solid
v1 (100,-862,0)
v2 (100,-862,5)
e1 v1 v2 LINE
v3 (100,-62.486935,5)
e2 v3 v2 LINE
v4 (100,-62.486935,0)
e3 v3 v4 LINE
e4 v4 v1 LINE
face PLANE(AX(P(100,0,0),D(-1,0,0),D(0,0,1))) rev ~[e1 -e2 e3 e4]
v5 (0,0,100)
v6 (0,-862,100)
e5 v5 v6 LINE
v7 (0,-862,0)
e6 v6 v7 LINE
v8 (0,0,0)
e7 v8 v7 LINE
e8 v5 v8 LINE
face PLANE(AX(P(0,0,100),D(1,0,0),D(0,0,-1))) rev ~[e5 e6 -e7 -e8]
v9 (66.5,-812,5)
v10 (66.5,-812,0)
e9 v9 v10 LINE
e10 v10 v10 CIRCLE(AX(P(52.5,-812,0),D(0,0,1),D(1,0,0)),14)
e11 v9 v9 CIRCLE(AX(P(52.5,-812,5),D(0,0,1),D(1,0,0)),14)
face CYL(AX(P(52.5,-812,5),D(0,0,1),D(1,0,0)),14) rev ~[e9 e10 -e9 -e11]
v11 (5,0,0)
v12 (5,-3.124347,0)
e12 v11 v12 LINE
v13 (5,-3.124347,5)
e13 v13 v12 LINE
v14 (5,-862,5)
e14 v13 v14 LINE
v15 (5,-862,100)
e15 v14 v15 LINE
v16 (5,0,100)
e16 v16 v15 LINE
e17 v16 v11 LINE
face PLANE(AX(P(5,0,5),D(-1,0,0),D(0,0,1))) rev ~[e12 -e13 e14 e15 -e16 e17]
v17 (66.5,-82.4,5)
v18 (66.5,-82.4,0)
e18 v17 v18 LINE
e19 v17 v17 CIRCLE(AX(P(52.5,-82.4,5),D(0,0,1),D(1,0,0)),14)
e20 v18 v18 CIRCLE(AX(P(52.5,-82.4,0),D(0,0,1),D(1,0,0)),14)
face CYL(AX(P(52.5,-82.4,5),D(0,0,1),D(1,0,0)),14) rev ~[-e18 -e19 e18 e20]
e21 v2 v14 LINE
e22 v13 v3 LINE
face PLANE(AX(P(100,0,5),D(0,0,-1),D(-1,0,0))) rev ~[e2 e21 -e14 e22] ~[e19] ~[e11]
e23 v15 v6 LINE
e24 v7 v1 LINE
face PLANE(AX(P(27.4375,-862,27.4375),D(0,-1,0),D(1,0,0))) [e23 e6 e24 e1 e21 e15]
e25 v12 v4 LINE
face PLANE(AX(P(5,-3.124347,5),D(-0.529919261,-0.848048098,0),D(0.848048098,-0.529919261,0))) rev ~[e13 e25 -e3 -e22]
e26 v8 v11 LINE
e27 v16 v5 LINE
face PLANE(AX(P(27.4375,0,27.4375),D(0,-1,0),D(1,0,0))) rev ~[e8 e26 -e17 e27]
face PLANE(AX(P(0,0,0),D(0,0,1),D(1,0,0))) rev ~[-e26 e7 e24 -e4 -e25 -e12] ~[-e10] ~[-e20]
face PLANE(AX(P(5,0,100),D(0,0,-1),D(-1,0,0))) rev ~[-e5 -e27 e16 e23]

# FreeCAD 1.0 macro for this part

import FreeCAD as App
import Part
import Sketcher
from FreeCAD import Vector
Q = App.Units.Quantity

doc = App.newDocument("Part")
body = doc.addObject("PartDesign::Body", "Body")

sketch1 = body.newObject("Sketcher::SketchObject", "Sketch")
sketch1.AttachmentSupport = (doc.getObject("XZ_Plane"), [""])
sketch1.MapMode = "FlatFace"
sketch1.addGeometry([
    Part.LineSegment(Vector(0, 100, 0), Vector(0, 0, 0)),
    Part.LineSegment(Vector(0, 0, 0), Vector(100, 0, 0)),
    Part.LineSegment(Vector(100, 0, 0), Vector(100, 5, 0)),
    Part.LineSegment(Vector(100, 5, 0), Vector(5, 5, 0)),
    Part.LineSegment(Vector(5, 5, 0), Vector(5, 100, 0)),
    Part.LineSegment(Vector(5, 100, 0), Vector(0, 100, 0)),
], False)
sketch1.addConstraint([
    Sketcher.Constraint("Coincident", 0, 2, 1, 1),
    Sketcher.Constraint("Coincident", 1, 2, 2, 1),
    Sketcher.Constraint("Coincident", 2, 2, 3, 1),
    Sketcher.Constraint("Coincident", 3, 2, 4, 1),
    Sketcher.Constraint("Coincident", 4, 2, 5, 1),
    Sketcher.Constraint("Coincident", 5, 2, 0, 1),
    Sketcher.Constraint("Vertical", 0),
    Sketcher.Constraint("Horizontal", 1),
    Sketcher.Constraint("Vertical", 2),
    Sketcher.Constraint("Horizontal", 3),
    Sketcher.Constraint("Vertical", 4),
    Sketcher.Constraint("Horizontal", 5),
    Sketcher.Constraint("Coincident", 0, 2, -1, 1),
    Sketcher.Constraint("Equal", 1, 0),
    Sketcher.Constraint("Equal", 5, 2),
    Sketcher.Constraint("DistanceX", 1, 1, 1, 2, 100.0),
    Sketcher.Constraint("DistanceX", 3, 2, 3, 1, 95.0),
])
pad1 = body.newObject("PartDesign::Pad", "Pad")
pad1.Profile = sketch1
pad1.Length = 862

sketch2 = body.newObject("Sketcher::SketchObject", "Sketch001")
sketch2.AttachmentSupport = (doc.getObject("XY_Plane"), [""])
sketch2.MapMode = "FlatFace"
sketch2.AttachmentOffset = App.Placement(Vector(0, 0, 5), App.Rotation())
sketch2.addGeometry([
    Part.Circle(Vector(52, -82, 0), Vector(0, 0, 1), 14),
    Part.Circle(Vector(52, -812, 0), Vector(0, 0, 1), 14),
], False)
sketch2.addConstraint([
    Sketcher.Constraint("Equal", 0, 1),
    Sketcher.Constraint("Vertical", 0, 3, 1, 3),
    Sketcher.Constraint("Diameter", 0, 28.0),
    Sketcher.Constraint("DistanceY", 1, 3, -1, 1, 812.0),
    Sketcher.Constraint("DistanceX", -1, 1, 0, 3, 52.5),
    Sketcher.Constraint("DistanceY", 0, 3, -1, 1, 82.4),
])
pocket1 = body.newObject("PartDesign::Pocket", "Pocket")
pocket1.Profile = sketch2
pocket1.Type = "ThroughAll"

sketch3 = body.newObject("Sketcher::SketchObject", "Sketch002")
sketch3.AttachmentSupport = (doc.getObject("XY_Plane"), [""])
sketch3.MapMode = "FlatFace"
sketch3.AttachmentOffset = App.Placement(Vector(0, 0, 5), App.Rotation())
sketch3.addGeometry([
    Part.LineSegment(Vector(5, -3.1, 0), Vector(100, -62.5, 0)),
    Part.LineSegment(Vector(100, -62.5, 0), Vector(100, 0, 0)),
    Part.LineSegment(Vector(100, 0, 0), Vector(5, 0, 0)),
    Part.LineSegment(Vector(5, 0, 0), Vector(5, -3.1, 0)),
], False)
sketch3.addConstraint([
    Sketcher.Constraint("Coincident", 0, 2, 1, 1),
    Sketcher.Constraint("Coincident", 1, 2, 2, 1),
    Sketcher.Constraint("Coincident", 2, 2, 3, 1),
    Sketcher.Constraint("Coincident", 3, 2, 0, 1),
    Sketcher.Constraint("Vertical", 1),
    Sketcher.Constraint("Horizontal", 2),
    Sketcher.Constraint("Vertical", 3),
    Sketcher.Constraint("PointOnObject", 1, 2, -1),
    Sketcher.Constraint("DistanceX", 2, 2, 2, 1, 95.0),
    Sketcher.Constraint("Angle", 0, Q("-32 deg")),
    Sketcher.Constraint("DistanceX", -1, 1, 0, 2, 100.0),
    Sketcher.Constraint("DistanceY", 1, 1, 1, 2, 62.486935),
])
pocket2 = body.newObject("PartDesign::Pocket", "Pocket001")
pocket2.Profile = sketch3
pocket2.Length = 5

doc.recompute()
